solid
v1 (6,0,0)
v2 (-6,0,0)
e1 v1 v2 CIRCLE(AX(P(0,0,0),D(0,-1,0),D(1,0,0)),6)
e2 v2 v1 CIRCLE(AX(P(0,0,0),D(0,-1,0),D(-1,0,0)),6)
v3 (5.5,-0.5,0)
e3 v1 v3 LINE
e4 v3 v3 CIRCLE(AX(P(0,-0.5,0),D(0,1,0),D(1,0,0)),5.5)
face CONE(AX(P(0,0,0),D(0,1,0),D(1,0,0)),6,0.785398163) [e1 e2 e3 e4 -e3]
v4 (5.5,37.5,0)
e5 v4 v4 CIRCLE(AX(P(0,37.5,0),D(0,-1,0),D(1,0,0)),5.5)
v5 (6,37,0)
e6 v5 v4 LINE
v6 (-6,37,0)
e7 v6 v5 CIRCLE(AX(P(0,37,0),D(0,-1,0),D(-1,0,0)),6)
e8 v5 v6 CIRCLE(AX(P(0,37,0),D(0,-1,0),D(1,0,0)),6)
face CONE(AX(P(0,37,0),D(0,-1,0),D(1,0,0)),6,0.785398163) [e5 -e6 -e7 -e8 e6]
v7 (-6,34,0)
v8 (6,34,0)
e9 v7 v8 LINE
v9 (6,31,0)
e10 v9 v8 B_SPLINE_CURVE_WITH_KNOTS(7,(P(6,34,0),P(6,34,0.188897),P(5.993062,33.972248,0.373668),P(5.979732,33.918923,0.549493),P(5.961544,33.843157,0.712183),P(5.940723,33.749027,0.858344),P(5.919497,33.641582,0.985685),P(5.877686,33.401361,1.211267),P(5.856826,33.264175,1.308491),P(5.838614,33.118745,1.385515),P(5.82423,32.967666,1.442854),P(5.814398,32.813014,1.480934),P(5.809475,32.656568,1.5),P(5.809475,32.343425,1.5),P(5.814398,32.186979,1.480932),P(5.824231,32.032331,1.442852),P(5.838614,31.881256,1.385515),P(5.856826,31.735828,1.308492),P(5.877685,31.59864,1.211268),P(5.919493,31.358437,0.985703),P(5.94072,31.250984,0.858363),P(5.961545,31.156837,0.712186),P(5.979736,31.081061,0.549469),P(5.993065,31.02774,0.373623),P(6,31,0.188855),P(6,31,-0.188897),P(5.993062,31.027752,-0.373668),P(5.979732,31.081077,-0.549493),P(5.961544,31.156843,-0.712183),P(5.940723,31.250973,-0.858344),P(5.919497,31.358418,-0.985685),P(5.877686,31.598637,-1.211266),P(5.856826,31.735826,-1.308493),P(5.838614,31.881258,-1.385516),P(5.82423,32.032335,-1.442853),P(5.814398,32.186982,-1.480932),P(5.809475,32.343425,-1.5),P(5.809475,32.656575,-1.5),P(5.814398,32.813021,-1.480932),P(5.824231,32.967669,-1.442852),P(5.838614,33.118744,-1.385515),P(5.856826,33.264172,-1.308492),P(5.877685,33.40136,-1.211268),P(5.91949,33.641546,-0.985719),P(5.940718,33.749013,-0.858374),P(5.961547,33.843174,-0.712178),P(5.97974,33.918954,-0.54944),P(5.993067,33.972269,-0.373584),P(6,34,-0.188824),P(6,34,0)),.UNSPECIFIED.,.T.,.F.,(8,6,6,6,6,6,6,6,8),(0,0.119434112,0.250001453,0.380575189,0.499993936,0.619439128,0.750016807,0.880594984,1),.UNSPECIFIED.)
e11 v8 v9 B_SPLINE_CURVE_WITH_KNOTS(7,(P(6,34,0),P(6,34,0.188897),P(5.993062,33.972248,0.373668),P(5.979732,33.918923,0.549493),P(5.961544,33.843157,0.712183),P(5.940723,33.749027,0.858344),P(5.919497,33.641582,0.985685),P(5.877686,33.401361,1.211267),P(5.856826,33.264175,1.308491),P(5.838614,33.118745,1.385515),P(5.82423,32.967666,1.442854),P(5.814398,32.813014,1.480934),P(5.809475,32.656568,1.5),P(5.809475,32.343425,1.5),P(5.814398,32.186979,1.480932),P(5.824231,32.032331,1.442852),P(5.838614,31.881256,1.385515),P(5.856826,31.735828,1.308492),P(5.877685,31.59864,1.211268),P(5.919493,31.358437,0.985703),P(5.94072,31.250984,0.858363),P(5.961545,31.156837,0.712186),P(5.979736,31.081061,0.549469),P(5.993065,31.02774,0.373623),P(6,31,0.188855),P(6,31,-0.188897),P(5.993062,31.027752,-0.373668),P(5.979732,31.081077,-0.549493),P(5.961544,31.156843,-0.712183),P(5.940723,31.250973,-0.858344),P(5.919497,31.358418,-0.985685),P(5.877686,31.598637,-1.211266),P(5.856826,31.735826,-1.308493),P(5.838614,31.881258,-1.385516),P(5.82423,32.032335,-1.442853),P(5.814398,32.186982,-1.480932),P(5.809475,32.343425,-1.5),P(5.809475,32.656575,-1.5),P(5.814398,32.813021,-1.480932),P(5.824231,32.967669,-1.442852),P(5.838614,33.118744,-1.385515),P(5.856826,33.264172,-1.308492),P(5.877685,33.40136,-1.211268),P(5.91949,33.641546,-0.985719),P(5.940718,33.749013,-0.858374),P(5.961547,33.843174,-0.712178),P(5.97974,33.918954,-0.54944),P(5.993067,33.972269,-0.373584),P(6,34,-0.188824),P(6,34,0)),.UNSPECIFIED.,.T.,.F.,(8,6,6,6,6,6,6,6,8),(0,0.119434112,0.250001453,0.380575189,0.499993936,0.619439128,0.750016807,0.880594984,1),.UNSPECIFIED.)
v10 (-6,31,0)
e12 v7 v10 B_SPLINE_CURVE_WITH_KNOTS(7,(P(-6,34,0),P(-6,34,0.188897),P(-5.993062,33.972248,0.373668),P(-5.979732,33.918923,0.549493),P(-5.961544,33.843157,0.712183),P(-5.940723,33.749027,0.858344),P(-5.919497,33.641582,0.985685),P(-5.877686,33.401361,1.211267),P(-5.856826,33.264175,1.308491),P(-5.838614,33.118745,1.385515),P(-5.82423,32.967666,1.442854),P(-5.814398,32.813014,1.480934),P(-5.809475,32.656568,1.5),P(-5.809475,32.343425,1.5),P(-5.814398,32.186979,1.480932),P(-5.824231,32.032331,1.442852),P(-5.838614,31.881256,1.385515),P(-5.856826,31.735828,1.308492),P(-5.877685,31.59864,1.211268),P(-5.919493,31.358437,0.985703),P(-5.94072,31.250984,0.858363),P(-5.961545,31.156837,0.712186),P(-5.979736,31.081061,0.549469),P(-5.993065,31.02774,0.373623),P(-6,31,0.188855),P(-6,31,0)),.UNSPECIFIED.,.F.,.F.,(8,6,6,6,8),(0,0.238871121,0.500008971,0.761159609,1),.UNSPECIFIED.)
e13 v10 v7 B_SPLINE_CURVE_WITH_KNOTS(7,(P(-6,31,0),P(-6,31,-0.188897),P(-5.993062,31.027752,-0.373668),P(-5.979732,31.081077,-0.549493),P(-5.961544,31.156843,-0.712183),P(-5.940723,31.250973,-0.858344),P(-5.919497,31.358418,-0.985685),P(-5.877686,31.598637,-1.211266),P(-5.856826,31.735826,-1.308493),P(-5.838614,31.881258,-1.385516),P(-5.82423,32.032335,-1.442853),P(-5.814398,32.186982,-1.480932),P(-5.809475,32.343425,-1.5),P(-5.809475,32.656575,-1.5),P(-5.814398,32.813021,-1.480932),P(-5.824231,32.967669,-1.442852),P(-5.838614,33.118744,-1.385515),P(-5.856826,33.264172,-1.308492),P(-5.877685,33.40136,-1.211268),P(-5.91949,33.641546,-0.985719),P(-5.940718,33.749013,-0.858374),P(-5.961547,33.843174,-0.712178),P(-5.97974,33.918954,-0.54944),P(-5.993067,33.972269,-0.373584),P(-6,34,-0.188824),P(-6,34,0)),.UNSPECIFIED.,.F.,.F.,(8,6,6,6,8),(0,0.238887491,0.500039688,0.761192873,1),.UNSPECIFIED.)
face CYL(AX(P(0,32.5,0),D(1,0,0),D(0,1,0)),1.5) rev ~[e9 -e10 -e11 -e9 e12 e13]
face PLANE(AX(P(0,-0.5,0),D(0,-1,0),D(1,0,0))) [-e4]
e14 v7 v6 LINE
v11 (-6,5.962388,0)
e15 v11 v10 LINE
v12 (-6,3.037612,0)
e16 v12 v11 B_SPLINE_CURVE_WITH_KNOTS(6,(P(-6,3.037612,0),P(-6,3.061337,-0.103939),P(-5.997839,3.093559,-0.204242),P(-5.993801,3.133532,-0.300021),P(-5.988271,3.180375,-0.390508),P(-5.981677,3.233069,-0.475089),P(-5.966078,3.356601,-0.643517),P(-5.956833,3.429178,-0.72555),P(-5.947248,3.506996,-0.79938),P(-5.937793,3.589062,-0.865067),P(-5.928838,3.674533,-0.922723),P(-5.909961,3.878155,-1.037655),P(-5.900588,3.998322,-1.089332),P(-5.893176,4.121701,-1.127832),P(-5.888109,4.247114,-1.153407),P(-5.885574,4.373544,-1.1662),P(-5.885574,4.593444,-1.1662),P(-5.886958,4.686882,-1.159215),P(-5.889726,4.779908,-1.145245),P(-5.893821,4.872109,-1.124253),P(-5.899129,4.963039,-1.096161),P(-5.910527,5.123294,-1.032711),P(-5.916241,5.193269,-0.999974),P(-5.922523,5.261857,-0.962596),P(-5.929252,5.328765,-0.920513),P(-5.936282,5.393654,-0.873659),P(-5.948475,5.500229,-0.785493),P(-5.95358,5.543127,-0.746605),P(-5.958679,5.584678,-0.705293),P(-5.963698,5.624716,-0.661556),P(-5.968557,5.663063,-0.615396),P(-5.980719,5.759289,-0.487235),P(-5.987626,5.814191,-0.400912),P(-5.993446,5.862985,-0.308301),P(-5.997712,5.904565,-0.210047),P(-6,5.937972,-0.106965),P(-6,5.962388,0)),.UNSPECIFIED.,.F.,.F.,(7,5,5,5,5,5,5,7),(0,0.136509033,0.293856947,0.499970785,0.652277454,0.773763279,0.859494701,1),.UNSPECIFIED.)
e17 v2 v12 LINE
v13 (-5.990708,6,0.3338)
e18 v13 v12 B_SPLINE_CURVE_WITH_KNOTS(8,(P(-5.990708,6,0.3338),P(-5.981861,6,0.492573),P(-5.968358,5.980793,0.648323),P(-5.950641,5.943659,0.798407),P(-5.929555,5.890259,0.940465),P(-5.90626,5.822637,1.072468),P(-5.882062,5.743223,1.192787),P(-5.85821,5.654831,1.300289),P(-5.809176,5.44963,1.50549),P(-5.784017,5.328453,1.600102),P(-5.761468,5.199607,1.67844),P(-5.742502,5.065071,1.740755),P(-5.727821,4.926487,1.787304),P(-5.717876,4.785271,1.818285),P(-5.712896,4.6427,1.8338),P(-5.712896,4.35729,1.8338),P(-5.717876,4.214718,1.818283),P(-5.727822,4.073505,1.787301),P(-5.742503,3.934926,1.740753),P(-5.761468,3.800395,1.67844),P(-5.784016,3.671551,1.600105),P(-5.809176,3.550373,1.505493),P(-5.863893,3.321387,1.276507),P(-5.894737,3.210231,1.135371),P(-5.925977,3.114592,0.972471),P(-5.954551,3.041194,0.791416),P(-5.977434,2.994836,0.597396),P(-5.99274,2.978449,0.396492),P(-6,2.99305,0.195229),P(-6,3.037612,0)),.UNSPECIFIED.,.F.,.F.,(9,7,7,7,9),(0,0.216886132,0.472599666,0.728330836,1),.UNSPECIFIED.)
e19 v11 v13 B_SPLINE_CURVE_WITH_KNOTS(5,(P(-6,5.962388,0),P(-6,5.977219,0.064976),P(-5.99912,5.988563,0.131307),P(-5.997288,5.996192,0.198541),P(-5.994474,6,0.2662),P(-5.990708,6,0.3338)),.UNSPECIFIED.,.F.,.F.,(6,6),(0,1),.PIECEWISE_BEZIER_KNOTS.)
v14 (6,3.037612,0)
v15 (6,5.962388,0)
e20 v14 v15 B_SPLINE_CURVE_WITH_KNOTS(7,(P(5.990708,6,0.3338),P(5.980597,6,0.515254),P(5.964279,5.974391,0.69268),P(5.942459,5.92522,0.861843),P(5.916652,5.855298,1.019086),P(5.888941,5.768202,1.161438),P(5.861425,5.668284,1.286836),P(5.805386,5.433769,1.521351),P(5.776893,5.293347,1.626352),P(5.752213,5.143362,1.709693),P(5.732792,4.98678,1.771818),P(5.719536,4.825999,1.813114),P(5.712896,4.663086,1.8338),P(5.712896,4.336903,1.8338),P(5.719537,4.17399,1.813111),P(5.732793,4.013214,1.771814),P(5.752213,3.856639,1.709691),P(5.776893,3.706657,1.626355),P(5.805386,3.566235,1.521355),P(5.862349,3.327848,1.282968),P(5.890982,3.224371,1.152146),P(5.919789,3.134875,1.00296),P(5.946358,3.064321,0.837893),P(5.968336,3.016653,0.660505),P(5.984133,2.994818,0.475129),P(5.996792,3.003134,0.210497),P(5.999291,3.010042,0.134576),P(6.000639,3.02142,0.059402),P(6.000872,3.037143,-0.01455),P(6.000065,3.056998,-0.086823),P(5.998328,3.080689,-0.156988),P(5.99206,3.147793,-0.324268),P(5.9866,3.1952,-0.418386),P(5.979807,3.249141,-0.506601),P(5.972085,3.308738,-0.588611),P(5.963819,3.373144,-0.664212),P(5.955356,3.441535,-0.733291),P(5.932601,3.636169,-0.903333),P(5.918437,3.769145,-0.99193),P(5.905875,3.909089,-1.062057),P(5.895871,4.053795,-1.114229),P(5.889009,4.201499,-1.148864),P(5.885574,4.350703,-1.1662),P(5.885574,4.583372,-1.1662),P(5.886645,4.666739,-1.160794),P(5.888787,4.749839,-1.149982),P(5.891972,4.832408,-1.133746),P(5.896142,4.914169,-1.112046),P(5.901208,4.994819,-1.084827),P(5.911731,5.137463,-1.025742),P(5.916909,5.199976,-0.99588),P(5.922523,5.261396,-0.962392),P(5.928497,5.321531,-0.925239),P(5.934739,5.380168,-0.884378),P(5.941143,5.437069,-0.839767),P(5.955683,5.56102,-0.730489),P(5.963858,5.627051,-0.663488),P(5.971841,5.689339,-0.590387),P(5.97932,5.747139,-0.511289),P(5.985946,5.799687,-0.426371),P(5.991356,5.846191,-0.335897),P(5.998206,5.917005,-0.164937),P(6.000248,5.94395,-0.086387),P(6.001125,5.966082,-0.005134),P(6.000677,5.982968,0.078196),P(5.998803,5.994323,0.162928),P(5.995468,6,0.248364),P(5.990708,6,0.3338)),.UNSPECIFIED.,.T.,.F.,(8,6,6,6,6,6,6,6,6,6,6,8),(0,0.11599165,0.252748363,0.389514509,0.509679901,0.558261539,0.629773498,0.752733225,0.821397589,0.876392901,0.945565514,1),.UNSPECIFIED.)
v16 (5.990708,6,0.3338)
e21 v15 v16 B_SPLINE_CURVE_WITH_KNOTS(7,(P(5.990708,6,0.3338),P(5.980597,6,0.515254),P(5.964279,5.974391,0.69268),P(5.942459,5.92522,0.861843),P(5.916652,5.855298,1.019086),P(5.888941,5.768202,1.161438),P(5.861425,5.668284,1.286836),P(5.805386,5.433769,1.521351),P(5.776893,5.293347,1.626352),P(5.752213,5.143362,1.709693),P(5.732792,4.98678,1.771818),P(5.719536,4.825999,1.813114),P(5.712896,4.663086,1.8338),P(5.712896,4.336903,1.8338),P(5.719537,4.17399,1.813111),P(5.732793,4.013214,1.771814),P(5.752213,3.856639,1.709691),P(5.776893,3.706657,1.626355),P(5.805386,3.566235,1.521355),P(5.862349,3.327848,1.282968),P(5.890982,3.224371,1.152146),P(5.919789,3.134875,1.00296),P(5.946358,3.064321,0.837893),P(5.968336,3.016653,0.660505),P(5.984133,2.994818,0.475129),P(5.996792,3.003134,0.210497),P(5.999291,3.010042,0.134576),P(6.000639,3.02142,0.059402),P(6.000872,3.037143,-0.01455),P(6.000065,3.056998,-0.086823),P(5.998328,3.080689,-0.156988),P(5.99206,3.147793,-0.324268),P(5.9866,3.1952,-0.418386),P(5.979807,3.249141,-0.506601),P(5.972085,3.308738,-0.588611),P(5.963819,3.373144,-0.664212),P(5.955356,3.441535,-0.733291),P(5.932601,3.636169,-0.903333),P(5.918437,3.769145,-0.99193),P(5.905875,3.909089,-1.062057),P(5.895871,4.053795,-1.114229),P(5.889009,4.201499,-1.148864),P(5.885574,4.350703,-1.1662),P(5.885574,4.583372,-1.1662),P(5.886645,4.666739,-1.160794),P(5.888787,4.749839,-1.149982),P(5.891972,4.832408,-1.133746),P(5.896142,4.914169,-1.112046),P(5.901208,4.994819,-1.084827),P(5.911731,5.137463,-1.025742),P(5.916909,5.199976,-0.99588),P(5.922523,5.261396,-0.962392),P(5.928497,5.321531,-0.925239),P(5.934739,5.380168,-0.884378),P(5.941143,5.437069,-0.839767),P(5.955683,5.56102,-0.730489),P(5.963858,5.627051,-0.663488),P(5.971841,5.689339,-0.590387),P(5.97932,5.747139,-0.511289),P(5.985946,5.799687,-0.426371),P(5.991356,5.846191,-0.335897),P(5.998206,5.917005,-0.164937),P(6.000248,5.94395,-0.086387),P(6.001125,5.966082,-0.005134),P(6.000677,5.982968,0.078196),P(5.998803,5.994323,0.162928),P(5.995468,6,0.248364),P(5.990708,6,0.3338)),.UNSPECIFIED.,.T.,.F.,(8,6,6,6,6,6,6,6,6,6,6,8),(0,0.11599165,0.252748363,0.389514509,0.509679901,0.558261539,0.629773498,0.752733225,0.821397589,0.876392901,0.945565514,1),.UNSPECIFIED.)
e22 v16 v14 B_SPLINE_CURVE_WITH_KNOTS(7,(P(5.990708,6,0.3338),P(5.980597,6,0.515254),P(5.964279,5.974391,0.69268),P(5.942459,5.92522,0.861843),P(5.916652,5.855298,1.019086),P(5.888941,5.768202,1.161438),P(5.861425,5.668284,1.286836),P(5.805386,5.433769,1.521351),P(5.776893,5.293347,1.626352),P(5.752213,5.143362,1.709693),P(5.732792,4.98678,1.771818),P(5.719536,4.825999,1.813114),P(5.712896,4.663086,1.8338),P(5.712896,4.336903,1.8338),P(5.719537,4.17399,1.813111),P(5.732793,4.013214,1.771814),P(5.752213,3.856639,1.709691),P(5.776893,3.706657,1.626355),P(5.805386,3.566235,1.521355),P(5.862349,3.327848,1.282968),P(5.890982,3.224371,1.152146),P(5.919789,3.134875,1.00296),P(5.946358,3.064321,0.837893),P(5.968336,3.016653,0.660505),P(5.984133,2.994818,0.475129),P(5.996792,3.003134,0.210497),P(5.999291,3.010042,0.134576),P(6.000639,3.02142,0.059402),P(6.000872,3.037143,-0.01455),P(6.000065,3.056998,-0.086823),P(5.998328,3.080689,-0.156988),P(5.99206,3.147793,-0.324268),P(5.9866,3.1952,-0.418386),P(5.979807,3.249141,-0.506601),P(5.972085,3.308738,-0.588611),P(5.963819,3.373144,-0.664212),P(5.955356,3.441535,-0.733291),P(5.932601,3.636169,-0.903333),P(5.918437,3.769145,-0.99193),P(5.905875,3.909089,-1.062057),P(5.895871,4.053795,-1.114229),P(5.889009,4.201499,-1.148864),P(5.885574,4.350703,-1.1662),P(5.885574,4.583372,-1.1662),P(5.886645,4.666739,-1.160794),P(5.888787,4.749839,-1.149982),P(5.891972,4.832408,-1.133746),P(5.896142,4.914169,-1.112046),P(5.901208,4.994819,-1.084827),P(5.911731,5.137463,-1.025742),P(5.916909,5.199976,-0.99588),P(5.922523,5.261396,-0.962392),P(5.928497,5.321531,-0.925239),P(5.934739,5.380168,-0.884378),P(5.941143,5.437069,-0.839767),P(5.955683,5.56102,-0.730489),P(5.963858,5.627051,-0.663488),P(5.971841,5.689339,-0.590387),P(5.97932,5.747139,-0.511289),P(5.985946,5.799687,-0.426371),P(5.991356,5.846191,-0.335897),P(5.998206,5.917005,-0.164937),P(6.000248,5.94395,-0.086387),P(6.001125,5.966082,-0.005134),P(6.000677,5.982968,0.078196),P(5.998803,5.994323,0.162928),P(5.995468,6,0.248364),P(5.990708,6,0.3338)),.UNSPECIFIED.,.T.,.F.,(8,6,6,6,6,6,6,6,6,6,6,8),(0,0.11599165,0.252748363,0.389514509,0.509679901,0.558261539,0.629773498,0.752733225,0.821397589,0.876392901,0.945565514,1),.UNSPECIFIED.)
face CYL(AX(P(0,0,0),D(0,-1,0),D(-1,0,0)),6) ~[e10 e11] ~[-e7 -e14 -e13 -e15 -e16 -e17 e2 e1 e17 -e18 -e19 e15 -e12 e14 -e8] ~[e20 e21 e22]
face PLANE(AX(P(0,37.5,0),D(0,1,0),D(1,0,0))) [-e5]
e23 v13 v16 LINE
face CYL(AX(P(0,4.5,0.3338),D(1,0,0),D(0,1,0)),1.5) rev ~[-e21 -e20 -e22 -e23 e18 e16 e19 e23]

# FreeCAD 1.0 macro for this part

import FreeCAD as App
import Part
import Sketcher
from FreeCAD import Vector

doc = App.newDocument("Part")
body = doc.addObject("PartDesign::Body", "Body")

# Sketch on XZ plane
sketch1 = body.newObject("Sketcher::SketchObject", "Sketch")
sketch1.AttachmentSupport = (doc.getObject("XZ_Plane"), [""])
sketch1.MapMode = "FlatFace"
sketch1.addGeometry(Part.Circle(Vector(0, 0, 0), Vector(0, 0, 1), 6), False)
sketch1.addConstraint([
    Sketcher.Constraint("Coincident", 0, 3, -1, 1),
    Sketcher.Constraint("Diameter", 0, 12.0),
])
pad1 = body.newObject("PartDesign::Pad", "Pad")
pad1.Profile = sketch1
pad1.Length = 37
pad1.Reversed = True

# Sketch on XZ plane
sketch2 = body.newObject("Sketcher::SketchObject", "Sketch001")
sketch2.AttachmentSupport = (doc.getObject("XZ_Plane"), [""])
sketch2.MapMode = "FlatFace"
sketch2.AttachmentOffset = App.Placement(Vector(0, 0, -37), App.Rotation())
sketch2.addGeometry(Part.Circle(Vector(0, 0, 0), Vector(0, 0, 1), 6), False)
sketch2.addConstraint([
    Sketcher.Constraint("Coincident", 0, 3, -1, 1),
    Sketcher.Constraint("Diameter", 0, 12.0),
])
pad2 = body.newObject("PartDesign::Pad", "Pad001")
pad2.Profile = sketch2
pad2.Length = 0.5
pad2.Reversed = True
pad2.TaperAngle = -45

# Sketch on XZ plane
sketch3 = body.newObject("Sketcher::SketchObject", "Sketch002")
sketch3.AttachmentSupport = (doc.getObject("XZ_Plane"), [""])
sketch3.MapMode = "FlatFace"
sketch3.addGeometry(Part.Circle(Vector(0, 0, 0), Vector(0, 0, 1), 6), False)
sketch3.addConstraint([
    Sketcher.Constraint("Coincident", 0, 3, -1, 1),
    Sketcher.Constraint("Diameter", 0, 12.0),
])
pad3 = body.newObject("PartDesign::Pad", "Pad002")
pad3.Profile = sketch3
pad3.Length = 0.5
pad3.TaperAngle = -45

# Sketch on YZ plane
sketch4 = body.newObject("Sketcher::SketchObject", "Sketch003")
sketch4.AttachmentSupport = (doc.getObject("YZ_Plane"), [""])
sketch4.MapMode = "FlatFace"
sketch4.addGeometry(Part.Circle(Vector(4.5, 0.3, 0), Vector(0, 0, 1), 1.5), False)
sketch4.addConstraint([
    Sketcher.Constraint("Diameter", 0, 3.0),
    Sketcher.Constraint("DistanceX", -1, 1, 0, 3, 4.5),
    Sketcher.Constraint("DistanceY", -1, 1, 0, 3, 0.3338),
])
pocket1 = body.newObject("PartDesign::Pocket", "Pocket")
pocket1.Profile = sketch4
pocket1.Length = 12
pocket1.Midplane = True

# Sketch on YZ plane
sketch5 = body.newObject("Sketcher::SketchObject", "Sketch004")
sketch5.AttachmentSupport = (doc.getObject("YZ_Plane"), [""])
sketch5.MapMode = "FlatFace"
sketch5.addGeometry(Part.Circle(Vector(32.5, 0, 0), Vector(0, 0, 1), 1.5), False)
sketch5.addConstraint([
    Sketcher.Constraint("PointOnObject", 0, 3, -1),
    Sketcher.Constraint("Diameter", 0, 3.0),
    Sketcher.Constraint("DistanceX", -1, 1, 0, 3, 32.5),
])
pocket2 = body.newObject("PartDesign::Pocket", "Pocket001")
pocket2.Profile = sketch5
pocket2.Length = 12
pocket2.Midplane = True

doc.recompute()
